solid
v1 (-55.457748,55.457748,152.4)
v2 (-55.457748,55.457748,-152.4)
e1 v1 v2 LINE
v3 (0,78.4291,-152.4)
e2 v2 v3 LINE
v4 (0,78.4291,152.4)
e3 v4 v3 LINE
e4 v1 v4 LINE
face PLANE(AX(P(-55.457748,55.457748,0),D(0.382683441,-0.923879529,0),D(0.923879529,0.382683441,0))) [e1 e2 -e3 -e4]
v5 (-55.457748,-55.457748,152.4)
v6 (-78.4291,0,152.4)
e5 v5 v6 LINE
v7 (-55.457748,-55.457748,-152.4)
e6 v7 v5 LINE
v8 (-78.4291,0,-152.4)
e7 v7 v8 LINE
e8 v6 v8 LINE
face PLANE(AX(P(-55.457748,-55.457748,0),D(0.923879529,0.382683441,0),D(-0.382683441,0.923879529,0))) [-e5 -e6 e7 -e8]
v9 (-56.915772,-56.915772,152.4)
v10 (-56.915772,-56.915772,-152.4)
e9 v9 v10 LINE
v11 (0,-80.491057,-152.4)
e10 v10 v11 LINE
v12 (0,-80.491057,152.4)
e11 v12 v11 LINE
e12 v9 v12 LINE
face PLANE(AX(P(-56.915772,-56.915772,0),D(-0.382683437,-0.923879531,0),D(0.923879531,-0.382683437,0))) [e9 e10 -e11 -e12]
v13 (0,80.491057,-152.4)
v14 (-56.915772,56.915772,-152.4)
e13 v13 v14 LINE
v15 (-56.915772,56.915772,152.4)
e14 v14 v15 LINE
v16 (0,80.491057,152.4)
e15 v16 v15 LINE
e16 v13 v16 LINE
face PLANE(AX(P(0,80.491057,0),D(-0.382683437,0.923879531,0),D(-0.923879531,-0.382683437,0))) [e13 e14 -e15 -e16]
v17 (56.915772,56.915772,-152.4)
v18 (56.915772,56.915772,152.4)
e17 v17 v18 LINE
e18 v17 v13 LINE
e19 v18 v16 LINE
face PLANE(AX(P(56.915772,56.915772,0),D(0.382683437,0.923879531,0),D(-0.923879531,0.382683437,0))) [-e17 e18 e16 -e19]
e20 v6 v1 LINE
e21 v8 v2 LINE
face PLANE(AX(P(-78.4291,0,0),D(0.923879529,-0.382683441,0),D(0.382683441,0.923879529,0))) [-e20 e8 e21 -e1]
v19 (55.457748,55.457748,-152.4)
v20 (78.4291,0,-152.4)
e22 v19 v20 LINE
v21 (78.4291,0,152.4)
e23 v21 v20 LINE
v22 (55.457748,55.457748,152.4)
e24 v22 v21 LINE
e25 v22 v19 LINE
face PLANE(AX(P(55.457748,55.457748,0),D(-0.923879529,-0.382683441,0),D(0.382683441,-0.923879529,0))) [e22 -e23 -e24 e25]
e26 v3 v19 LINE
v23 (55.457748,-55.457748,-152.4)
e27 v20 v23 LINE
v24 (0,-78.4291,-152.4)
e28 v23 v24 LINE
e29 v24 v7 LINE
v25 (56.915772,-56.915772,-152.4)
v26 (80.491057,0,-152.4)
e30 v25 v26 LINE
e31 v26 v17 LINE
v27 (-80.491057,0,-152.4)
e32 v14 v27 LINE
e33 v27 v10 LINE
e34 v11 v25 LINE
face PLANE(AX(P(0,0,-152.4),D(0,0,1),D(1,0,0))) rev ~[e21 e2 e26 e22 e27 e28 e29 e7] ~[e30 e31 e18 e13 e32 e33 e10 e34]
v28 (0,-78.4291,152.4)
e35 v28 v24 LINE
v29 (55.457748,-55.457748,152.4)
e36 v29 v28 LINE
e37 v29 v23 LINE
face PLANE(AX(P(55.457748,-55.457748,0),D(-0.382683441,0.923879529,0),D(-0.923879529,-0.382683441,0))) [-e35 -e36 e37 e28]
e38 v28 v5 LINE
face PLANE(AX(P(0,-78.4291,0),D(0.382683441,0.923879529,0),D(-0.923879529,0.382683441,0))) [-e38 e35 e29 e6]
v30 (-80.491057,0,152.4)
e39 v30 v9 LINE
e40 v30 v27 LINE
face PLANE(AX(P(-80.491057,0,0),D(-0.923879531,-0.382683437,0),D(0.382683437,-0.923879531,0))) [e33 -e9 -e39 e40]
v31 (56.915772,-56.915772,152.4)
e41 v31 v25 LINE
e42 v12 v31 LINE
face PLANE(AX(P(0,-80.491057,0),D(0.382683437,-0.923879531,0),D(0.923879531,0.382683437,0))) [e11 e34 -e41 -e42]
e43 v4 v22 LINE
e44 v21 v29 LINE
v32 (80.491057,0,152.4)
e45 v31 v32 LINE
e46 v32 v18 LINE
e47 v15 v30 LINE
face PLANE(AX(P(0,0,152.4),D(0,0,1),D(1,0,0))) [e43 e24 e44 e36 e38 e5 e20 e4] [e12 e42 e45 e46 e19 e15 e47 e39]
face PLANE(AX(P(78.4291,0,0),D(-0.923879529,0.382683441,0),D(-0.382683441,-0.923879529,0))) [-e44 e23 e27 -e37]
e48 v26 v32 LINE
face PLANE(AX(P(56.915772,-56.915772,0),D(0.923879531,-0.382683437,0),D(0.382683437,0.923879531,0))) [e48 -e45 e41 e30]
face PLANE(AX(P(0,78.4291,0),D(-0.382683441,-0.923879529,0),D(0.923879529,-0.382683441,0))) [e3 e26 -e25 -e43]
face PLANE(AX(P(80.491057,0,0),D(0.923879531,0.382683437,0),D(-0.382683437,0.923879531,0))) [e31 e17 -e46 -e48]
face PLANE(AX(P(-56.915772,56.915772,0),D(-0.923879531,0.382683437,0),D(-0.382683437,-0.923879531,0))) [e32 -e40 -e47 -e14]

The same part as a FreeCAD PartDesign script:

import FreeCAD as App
import Part
import Sketcher
from FreeCAD import Vector
Q = App.Units.Quantity


def add_polygon(sketch, points):
    """Adds a closed chain of lines whose ends are joined by coincident constraints."""
    first, n = sketch.GeometryCount, len(points)
    for a, b in zip(points, points[1:] + points[:1]):
        sketch.addGeometry(Part.LineSegment(App.Vector(*a, 0), App.Vector(*b, 0)), False)
    for i in range(n):
        sketch.addConstraint(Sketcher.Constraint("Coincident", first + i, 2, first + (i + 1) % n, 1))

doc = App.newDocument("Part")
body = doc.addObject("PartDesign::Body", "Body")

# Sketch on XY plane
sketch1 = doc.addObject("Sketcher::SketchObject", "Sketch")
body.addObject(sketch1)
sketch1.AttachmentSupport = (doc.XY_Plane, [""])
sketch1.MapMode = "FlatFace"
add_polygon(sketch1, [(57, -57), (80, 0), (57, 57), (0, 80), (-57, 57), (-80, 0), (-57, -57), (0, -80)])  # lines 0-7
add_polygon(sketch1, [(0, -78), (-55, -55), (-78, 0), (-55, 55), (0, 78), (55, 55), (78, 0), (55, -55)])  # lines 8-15
sketch1.addConstraint([
    Sketcher.Constraint("Symmetric", 0, 2, 4, 2, -1, 1),
    Sketcher.Constraint("Symmetric", 1, 2, 5, 2, -1, 1),
    Sketcher.Constraint("Symmetric", 2, 2, 6, 2, -1, 1),
    Sketcher.Constraint("Symmetric", 3, 2, 7, 2, -1, 1),
    Sketcher.Constraint("Symmetric", 8, 2, 12, 2, -1, 1),
    Sketcher.Constraint("Symmetric", 9, 2, 13, 2, -1, 1),
    Sketcher.Constraint("Symmetric", 10, 2, 14, 2, -1, 1),
    Sketcher.Constraint("Symmetric", 11, 2, 15, 2, -1, 1),
    Sketcher.Constraint("Symmetric", 1, 2, 3, 2, -2),
    Sketcher.Constraint("Symmetric", 10, 2, 12, 2, -2),
    Sketcher.Constraint("PointOnObject", 0, 2, -1),
    Sketcher.Constraint("PointOnObject", 2, 2, -2),
    Sketcher.Constraint("PointOnObject", 9, 2, -1),
    Sketcher.Constraint("PointOnObject", 11, 2, -2),
    Sketcher.Constraint("Perpendicular", 0, 2),
    Sketcher.Constraint("Parallel", 6, 8),
    Sketcher.Constraint("Perpendicular", 7, 9),
    Sketcher.Constraint("Equal", 1, 2),
    Sketcher.Constraint("Equal", 8, 9),
    Sketcher.Constraint("Angle", 0, Q("67.5 deg")),
    Sketcher.Constraint("DistanceX", 9, 2, -1, 1, 78.4291),
    Sketcher.Constraint("DistanceX", -1, 1, 1, 2, 56.915772),
])
pad1 = doc.addObject("PartDesign::Pad", "Pad")
body.addObject(pad1)
pad1.Profile = sketch1
pad1.Length = Q("12 in")
pad1.Midplane = True

doc.recompute()
